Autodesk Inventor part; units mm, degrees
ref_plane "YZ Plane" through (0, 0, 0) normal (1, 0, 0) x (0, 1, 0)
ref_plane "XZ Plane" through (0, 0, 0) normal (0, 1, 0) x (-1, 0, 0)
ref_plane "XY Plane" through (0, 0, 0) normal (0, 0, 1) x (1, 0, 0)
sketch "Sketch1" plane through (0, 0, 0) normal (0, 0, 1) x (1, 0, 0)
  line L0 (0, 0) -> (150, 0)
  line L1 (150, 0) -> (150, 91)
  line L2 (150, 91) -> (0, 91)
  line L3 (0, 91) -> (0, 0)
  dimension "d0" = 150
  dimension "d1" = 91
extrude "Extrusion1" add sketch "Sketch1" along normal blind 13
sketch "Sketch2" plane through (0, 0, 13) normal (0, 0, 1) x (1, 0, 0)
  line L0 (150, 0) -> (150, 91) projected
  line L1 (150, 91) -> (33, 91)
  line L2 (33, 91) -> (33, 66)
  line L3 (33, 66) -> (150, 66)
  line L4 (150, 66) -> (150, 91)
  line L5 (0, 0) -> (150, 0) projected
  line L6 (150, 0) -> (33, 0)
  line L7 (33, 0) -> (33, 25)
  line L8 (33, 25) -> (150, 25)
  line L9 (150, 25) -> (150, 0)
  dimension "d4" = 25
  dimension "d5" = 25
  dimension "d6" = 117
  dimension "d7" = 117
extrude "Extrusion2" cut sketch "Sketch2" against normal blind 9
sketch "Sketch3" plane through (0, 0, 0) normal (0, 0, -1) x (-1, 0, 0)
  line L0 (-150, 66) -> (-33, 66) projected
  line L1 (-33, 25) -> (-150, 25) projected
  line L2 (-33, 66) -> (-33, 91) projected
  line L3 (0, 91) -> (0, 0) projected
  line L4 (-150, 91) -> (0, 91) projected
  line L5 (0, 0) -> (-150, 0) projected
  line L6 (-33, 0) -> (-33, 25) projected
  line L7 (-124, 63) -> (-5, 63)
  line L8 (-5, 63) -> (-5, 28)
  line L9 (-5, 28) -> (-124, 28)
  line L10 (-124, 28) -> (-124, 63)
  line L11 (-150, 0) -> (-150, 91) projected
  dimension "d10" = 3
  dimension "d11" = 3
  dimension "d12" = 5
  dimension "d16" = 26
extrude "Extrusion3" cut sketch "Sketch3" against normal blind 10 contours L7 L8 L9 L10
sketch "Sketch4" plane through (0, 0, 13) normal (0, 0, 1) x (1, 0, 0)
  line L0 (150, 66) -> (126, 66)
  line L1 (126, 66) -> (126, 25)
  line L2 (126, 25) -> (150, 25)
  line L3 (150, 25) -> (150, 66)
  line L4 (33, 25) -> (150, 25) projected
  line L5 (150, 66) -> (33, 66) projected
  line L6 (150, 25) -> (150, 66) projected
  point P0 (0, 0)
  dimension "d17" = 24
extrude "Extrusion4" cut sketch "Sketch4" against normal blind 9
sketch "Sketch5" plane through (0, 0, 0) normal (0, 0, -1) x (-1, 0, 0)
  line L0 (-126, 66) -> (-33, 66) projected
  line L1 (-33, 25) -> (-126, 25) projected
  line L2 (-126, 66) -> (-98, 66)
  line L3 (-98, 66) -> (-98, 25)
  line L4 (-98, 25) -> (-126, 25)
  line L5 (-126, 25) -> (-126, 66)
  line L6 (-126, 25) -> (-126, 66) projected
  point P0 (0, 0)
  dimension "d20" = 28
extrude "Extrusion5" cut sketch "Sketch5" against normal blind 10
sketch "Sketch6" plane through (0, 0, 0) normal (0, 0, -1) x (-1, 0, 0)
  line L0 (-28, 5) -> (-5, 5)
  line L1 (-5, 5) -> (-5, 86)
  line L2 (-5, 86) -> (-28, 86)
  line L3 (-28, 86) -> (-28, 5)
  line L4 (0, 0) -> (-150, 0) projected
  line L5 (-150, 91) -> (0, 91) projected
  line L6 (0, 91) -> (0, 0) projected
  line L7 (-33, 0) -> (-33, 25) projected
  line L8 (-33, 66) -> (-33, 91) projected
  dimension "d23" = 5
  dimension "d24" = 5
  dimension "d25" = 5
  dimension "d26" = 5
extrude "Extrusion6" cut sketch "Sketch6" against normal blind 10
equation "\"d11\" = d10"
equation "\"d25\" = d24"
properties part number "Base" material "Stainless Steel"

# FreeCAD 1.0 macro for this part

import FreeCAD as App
import Part
import Sketcher

doc = App.newDocument("Part")
body = doc.addObject("PartDesign::Body", "Body")

sketch1 = body.newObject("Sketcher::SketchObject", "Sketch")
sketch1.AttachmentSupport = (doc.getObject("XY_Plane"), [""])
sketch1.MapMode = "FlatFace"
sketch1.addGeometry(Part.LineSegment(App.Vector(0, 91, 0), App.Vector(0, 0, 0)), False)
sketch1.addGeometry(Part.LineSegment(App.Vector(0, 0, 0), App.Vector(150, 0, 0)), False)
sketch1.addGeometry(Part.LineSegment(App.Vector(150, 0, 0), App.Vector(150, 91, 0)), False)
sketch1.addGeometry(Part.LineSegment(App.Vector(150, 91, 0), App.Vector(0, 91, 0)), False)
sketch1.addConstraint(Sketcher.Constraint("Coincident", 0, 2, 1, 1))
sketch1.addConstraint(Sketcher.Constraint("Coincident", 1, 2, 2, 1))
sketch1.addConstraint(Sketcher.Constraint("Coincident", 2, 2, 3, 1))
sketch1.addConstraint(Sketcher.Constraint("Coincident", 3, 2, 0, 1))
sketch1.addConstraint(Sketcher.Constraint("Vertical", 0))
sketch1.addConstraint(Sketcher.Constraint("Horizontal", 1))
sketch1.addConstraint(Sketcher.Constraint("Vertical", 2))
sketch1.addConstraint(Sketcher.Constraint("Horizontal", 3))
sketch1.addConstraint(Sketcher.Constraint("Coincident", 0, 2, -1, 1))
sketch1.addConstraint(Sketcher.Constraint("DistanceX", 1, 1, 1, 2, 150.0))
sketch1.addConstraint(Sketcher.Constraint("DistanceY", 0, 2, 0, 1, 91.0))
pad1 = body.newObject("PartDesign::Pad", "Pad")
pad1.Profile = sketch1
pad1.Length = 13

sketch2 = body.newObject("Sketcher::SketchObject", "Sketch001")
sketch2.AttachmentSupport = (doc.getObject("XY_Plane"), [""])
sketch2.MapMode = "FlatFace"
sketch2.AttachmentOffset = App.Placement(App.Vector(0, 0, 13), App.Rotation())
sketch2.addGeometry(Part.LineSegment(App.Vector(33, 0, 0), App.Vector(150, 0, 0)), False)
sketch2.addGeometry(Part.LineSegment(App.Vector(150, 0, 0), App.Vector(150, 25, 0)), False)
sketch2.addGeometry(Part.LineSegment(App.Vector(150, 25, 0), App.Vector(33, 25, 0)), False)
sketch2.addGeometry(Part.LineSegment(App.Vector(33, 25, 0), App.Vector(33, 0, 0)), False)
sketch2.addGeometry(Part.LineSegment(App.Vector(33, 66, 0), App.Vector(150, 66, 0)), False)
sketch2.addGeometry(Part.LineSegment(App.Vector(150, 66, 0), App.Vector(150, 91, 0)), False)
sketch2.addGeometry(Part.LineSegment(App.Vector(150, 91, 0), App.Vector(33, 91, 0)), False)
sketch2.addGeometry(Part.LineSegment(App.Vector(33, 91, 0), App.Vector(33, 66, 0)), False)
sketch2.addConstraint(Sketcher.Constraint("Coincident", 0, 2, 1, 1))
sketch2.addConstraint(Sketcher.Constraint("Coincident", 1, 2, 2, 1))
sketch2.addConstraint(Sketcher.Constraint("Coincident", 2, 2, 3, 1))
sketch2.addConstraint(Sketcher.Constraint("Coincident", 3, 2, 0, 1))
sketch2.addConstraint(Sketcher.Constraint("Coincident", 4, 2, 5, 1))
sketch2.addConstraint(Sketcher.Constraint("Coincident", 5, 2, 6, 1))
sketch2.addConstraint(Sketcher.Constraint("Coincident", 6, 2, 7, 1))
sketch2.addConstraint(Sketcher.Constraint("Coincident", 7, 2, 4, 1))
sketch2.addConstraint(Sketcher.Constraint("Horizontal", 0))
sketch2.addConstraint(Sketcher.Constraint("Vertical", 1))
sketch2.addConstraint(Sketcher.Constraint("Horizontal", 2))
sketch2.addConstraint(Sketcher.Constraint("Vertical", 3))
sketch2.addConstraint(Sketcher.Constraint("Horizontal", 4))
sketch2.addConstraint(Sketcher.Constraint("Vertical", 5))
sketch2.addConstraint(Sketcher.Constraint("Horizontal", 6))
sketch2.addConstraint(Sketcher.Constraint("Vertical", 7))
sketch2.addConstraint(Sketcher.Constraint("PointOnObject", 0, 2, -1))
sketch2.addConstraint(Sketcher.Constraint("Vertical", 1, 2, 4, 2))
sketch2.addConstraint(Sketcher.Constraint("Vertical", 3, 2, 6, 2))
sketch2.addConstraint(Sketcher.Constraint("Equal", 3, 5))
sketch2.addConstraint(Sketcher.Constraint("DistanceX", 0, 1, 0, 2, 117.0))
sketch2.addConstraint(Sketcher.Constraint("DistanceY", 1, 1, 1, 2, 25.0))
sketch2.addConstraint(Sketcher.Constraint("DistanceX", -1, 1, 0, 2, 150.0))
sketch2.addConstraint(Sketcher.Constraint("DistanceY", -1, 1, 4, 2, 66.0))
pocket1 = body.newObject("PartDesign::Pocket", "Pocket")
pocket1.Profile = sketch2
pocket1.Length = 9

sketch3 = body.newObject("Sketcher::SketchObject", "Sketch002")
sketch3.AttachmentSupport = (doc.getObject("XY_Plane"), [""])
sketch3.MapMode = "FlatFace"
sketch3.addGeometry(Part.LineSegment(App.Vector(5, 63, 0), App.Vector(124, 63, 0)), False)
sketch3.addGeometry(Part.LineSegment(App.Vector(124, 63, 0), App.Vector(124, 28, 0)), False)
sketch3.addGeometry(Part.LineSegment(App.Vector(124, 28, 0), App.Vector(5, 28, 0)), False)
sketch3.addGeometry(Part.LineSegment(App.Vector(5, 28, 0), App.Vector(5, 63, 0)), False)
sketch3.addConstraint(Sketcher.Constraint("Coincident", 0, 2, 1, 1))
sketch3.addConstraint(Sketcher.Constraint("Coincident", 1, 2, 2, 1))
sketch3.addConstraint(Sketcher.Constraint("Coincident", 2, 2, 3, 1))
sketch3.addConstraint(Sketcher.Constraint("Coincident", 3, 2, 0, 1))
sketch3.addConstraint(Sketcher.Constraint("Horizontal", 0))
sketch3.addConstraint(Sketcher.Constraint("Vertical", 1))
sketch3.addConstraint(Sketcher.Constraint("Horizontal", 2))
sketch3.addConstraint(Sketcher.Constraint("Vertical", 3))
sketch3.addConstraint(Sketcher.Constraint("DistanceX", -1, 1, 2, 2, 5.0))
sketch3.addConstraint(Sketcher.Constraint("DistanceX", 0, 1, 0, 2, 119.0))
sketch3.addConstraint(Sketcher.Constraint("DistanceY", 1, 2, 1, 1, 35.0))
sketch3.addConstraint(Sketcher.Constraint("DistanceY", -1, 1, 0, 2, 63.0))
pocket2 = body.newObject("PartDesign::Pocket", "Pocket001")
pocket2.Profile = sketch3
pocket2.Length = 10
pocket2.Reversed = True

sketch4 = body.newObject("Sketcher::SketchObject", "Sketch003")
sketch4.AttachmentSupport = (doc.getObject("XY_Plane"), [""])
sketch4.MapMode = "FlatFace"
sketch4.AttachmentOffset = App.Placement(App.Vector(0, 0, 13), App.Rotation())
sketch4.addGeometry(Part.LineSegment(App.Vector(150, 25, 0), App.Vector(150, 66, 0)), False)
sketch4.addGeometry(Part.LineSegment(App.Vector(150, 66, 0), App.Vector(126, 66, 0)), False)
sketch4.addGeometry(Part.LineSegment(App.Vector(126, 66, 0), App.Vector(126, 25, 0)), False)
sketch4.addGeometry(Part.LineSegment(App.Vector(126, 25, 0), App.Vector(150, 25, 0)), False)
sketch4.addConstraint(Sketcher.Constraint("Coincident", 0, 2, 1, 1))
sketch4.addConstraint(Sketcher.Constraint("Coincident", 1, 2, 2, 1))
sketch4.addConstraint(Sketcher.Constraint("Coincident", 2, 2, 3, 1))
sketch4.addConstraint(Sketcher.Constraint("Coincident", 3, 2, 0, 1))
sketch4.addConstraint(Sketcher.Constraint("Vertical", 0))
sketch4.addConstraint(Sketcher.Constraint("Horizontal", 1))
sketch4.addConstraint(Sketcher.Constraint("Vertical", 2))
sketch4.addConstraint(Sketcher.Constraint("Horizontal", 3))
sketch4.addConstraint(Sketcher.Constraint("DistanceX", 1, 2, 1, 1, 24.0))
sketch4.addConstraint(Sketcher.Constraint("DistanceY", 0, 1, 0, 2, 41.0))
sketch4.addConstraint(Sketcher.Constraint("DistanceX", -1, 1, 0, 2, 150.0))
sketch4.addConstraint(Sketcher.Constraint("DistanceY", -1, 1, 0, 2, 66.0))
pocket3 = body.newObject("PartDesign::Pocket", "Pocket002")
pocket3.Profile = sketch4
pocket3.Length = 9

sketch5 = body.newObject("Sketcher::SketchObject", "Sketch004")
sketch5.AttachmentSupport = (doc.getObject("XY_Plane"), [""])
sketch5.MapMode = "FlatFace"
sketch5.addGeometry(Part.LineSegment(App.Vector(98, 66, 0), App.Vector(126, 66, 0)), False)
sketch5.addGeometry(Part.LineSegment(App.Vector(126, 66, 0), App.Vector(126, 25, 0)), False)
sketch5.addGeometry(Part.LineSegment(App.Vector(126, 25, 0), App.Vector(98, 25, 0)), False)
sketch5.addGeometry(Part.LineSegment(App.Vector(98, 25, 0), App.Vector(98, 66, 0)), False)
sketch5.addConstraint(Sketcher.Constraint("Coincident", 0, 2, 1, 1))
sketch5.addConstraint(Sketcher.Constraint("Coincident", 1, 2, 2, 1))
sketch5.addConstraint(Sketcher.Constraint("Coincident", 2, 2, 3, 1))
sketch5.addConstraint(Sketcher.Constraint("Coincident", 3, 2, 0, 1))
sketch5.addConstraint(Sketcher.Constraint("Horizontal", 0))
sketch5.addConstraint(Sketcher.Constraint("Vertical", 1))
sketch5.addConstraint(Sketcher.Constraint("Horizontal", 2))
sketch5.addConstraint(Sketcher.Constraint("Vertical", 3))
sketch5.addConstraint(Sketcher.Constraint("DistanceX", 0, 1, 0, 2, 28.0))
sketch5.addConstraint(Sketcher.Constraint("DistanceY", 1, 2, 1, 1, 41.0))
sketch5.addConstraint(Sketcher.Constraint("DistanceX", -1, 1, 0, 2, 126.0))
sketch5.addConstraint(Sketcher.Constraint("DistanceY", -1, 1, 0, 2, 66.0))
pocket4 = body.newObject("PartDesign::Pocket", "Pocket003")
pocket4.Profile = sketch5
pocket4.Length = 10
pocket4.Reversed = True

sketch6 = body.newObject("Sketcher::SketchObject", "Sketch005")
sketch6.AttachmentSupport = (doc.getObject("XY_Plane"), [""])
sketch6.MapMode = "FlatFace"
sketch6.addGeometry(Part.LineSegment(App.Vector(28, 86, 0), App.Vector(28, 5, 0)), False)
sketch6.addGeometry(Part.LineSegment(App.Vector(28, 5, 0), App.Vector(5, 5, 0)), False)
sketch6.addGeometry(Part.LineSegment(App.Vector(5, 5, 0), App.Vector(5, 86, 0)), False)
sketch6.addGeometry(Part.LineSegment(App.Vector(5, 86, 0), App.Vector(28, 86, 0)), False)
sketch6.addConstraint(Sketcher.Constraint("Coincident", 0, 2, 1, 1))
sketch6.addConstraint(Sketcher.Constraint("Coincident", 1, 2, 2, 1))
sketch6.addConstraint(Sketcher.Constraint("Coincident", 2, 2, 3, 1))
sketch6.addConstraint(Sketcher.Constraint("Coincident", 3, 2, 0, 1))
sketch6.addConstraint(Sketcher.Constraint("Vertical", 0))
sketch6.addConstraint(Sketcher.Constraint("Horizontal", 1))
sketch6.addConstraint(Sketcher.Constraint("Vertical", 2))
sketch6.addConstraint(Sketcher.Constraint("Horizontal", 3))
sketch6.addConstraint(Sketcher.Constraint("DistanceY", -1, 1, 0, 2, 5.0))
sketch6.addConstraint(Sketcher.Constraint("DistanceX", -1, 1, 1, 2, 5.0))
sketch6.addConstraint(Sketcher.Constraint("DistanceX", 1, 2, 1, 1, 23.0))
sketch6.addConstraint(Sketcher.Constraint("DistanceY", 0, 2, 0, 1, 81.0))
pocket5 = body.newObject("PartDesign::Pocket", "Pocket004")
pocket5.Profile = sketch6
pocket5.Length = 10
pocket5.Reversed = True

doc.recompute()
